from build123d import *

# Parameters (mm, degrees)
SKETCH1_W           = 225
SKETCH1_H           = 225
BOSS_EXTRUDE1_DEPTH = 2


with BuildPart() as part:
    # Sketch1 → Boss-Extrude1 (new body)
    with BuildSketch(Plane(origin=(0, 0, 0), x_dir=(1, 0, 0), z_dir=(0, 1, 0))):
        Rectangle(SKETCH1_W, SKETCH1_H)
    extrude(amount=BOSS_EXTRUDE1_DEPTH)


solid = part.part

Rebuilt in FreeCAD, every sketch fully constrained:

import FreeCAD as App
import Part
import Sketcher

V = App.Vector

doc = App.newDocument("Part")
body = doc.addObject("PartDesign::Body", "Body")

# Sketch on XZ plane
sketch1 = doc.addObject("Sketcher::SketchObject", "Sketch")
body.addObject(sketch1)
sketch1.AttachmentSupport = (doc.XZ_Plane, [""])
sketch1.MapMode = "FlatFace"
sketch1.addGeometry([
    Part.LineSegment(V(-112.5, -112.5, 0), V(-112.5, 112.5, 0)),
    Part.LineSegment(V(-112.5, 112.5, 0), V(112.5, 112.5, 0)),
    Part.LineSegment(V(112.5, 112.5, 0), V(112.5, -112.5, 0)),
    Part.LineSegment(V(112.5, -112.5, 0), V(-112.5, -112.5, 0)),
], False)
sketch1.addConstraint([
    Sketcher.Constraint("Coincident", 0, 2, 1, 1),
    Sketcher.Constraint("Coincident", 1, 2, 2, 1),
    Sketcher.Constraint("Coincident", 2, 2, 3, 1),
    Sketcher.Constraint("Coincident", 3, 2, 0, 1),
    Sketcher.Constraint("Vertical", 0),
    Sketcher.Constraint("Horizontal", 1),
    Sketcher.Constraint("Vertical", 2),
    Sketcher.Constraint("Horizontal", 3),
    Sketcher.Constraint("Symmetric", 0, 2, 2, 2, -1, 1),
    Sketcher.Constraint("Equal", 3, 0),
    Sketcher.Constraint("DistanceX", 1, 1, 1, 2, 225.0),
])
pad1 = doc.addObject("PartDesign::Pad", "Pad")
body.addObject(pad1)
pad1.Profile = sketch1
pad1.Length = 2
pad1.Reversed = True

doc.recompute()
